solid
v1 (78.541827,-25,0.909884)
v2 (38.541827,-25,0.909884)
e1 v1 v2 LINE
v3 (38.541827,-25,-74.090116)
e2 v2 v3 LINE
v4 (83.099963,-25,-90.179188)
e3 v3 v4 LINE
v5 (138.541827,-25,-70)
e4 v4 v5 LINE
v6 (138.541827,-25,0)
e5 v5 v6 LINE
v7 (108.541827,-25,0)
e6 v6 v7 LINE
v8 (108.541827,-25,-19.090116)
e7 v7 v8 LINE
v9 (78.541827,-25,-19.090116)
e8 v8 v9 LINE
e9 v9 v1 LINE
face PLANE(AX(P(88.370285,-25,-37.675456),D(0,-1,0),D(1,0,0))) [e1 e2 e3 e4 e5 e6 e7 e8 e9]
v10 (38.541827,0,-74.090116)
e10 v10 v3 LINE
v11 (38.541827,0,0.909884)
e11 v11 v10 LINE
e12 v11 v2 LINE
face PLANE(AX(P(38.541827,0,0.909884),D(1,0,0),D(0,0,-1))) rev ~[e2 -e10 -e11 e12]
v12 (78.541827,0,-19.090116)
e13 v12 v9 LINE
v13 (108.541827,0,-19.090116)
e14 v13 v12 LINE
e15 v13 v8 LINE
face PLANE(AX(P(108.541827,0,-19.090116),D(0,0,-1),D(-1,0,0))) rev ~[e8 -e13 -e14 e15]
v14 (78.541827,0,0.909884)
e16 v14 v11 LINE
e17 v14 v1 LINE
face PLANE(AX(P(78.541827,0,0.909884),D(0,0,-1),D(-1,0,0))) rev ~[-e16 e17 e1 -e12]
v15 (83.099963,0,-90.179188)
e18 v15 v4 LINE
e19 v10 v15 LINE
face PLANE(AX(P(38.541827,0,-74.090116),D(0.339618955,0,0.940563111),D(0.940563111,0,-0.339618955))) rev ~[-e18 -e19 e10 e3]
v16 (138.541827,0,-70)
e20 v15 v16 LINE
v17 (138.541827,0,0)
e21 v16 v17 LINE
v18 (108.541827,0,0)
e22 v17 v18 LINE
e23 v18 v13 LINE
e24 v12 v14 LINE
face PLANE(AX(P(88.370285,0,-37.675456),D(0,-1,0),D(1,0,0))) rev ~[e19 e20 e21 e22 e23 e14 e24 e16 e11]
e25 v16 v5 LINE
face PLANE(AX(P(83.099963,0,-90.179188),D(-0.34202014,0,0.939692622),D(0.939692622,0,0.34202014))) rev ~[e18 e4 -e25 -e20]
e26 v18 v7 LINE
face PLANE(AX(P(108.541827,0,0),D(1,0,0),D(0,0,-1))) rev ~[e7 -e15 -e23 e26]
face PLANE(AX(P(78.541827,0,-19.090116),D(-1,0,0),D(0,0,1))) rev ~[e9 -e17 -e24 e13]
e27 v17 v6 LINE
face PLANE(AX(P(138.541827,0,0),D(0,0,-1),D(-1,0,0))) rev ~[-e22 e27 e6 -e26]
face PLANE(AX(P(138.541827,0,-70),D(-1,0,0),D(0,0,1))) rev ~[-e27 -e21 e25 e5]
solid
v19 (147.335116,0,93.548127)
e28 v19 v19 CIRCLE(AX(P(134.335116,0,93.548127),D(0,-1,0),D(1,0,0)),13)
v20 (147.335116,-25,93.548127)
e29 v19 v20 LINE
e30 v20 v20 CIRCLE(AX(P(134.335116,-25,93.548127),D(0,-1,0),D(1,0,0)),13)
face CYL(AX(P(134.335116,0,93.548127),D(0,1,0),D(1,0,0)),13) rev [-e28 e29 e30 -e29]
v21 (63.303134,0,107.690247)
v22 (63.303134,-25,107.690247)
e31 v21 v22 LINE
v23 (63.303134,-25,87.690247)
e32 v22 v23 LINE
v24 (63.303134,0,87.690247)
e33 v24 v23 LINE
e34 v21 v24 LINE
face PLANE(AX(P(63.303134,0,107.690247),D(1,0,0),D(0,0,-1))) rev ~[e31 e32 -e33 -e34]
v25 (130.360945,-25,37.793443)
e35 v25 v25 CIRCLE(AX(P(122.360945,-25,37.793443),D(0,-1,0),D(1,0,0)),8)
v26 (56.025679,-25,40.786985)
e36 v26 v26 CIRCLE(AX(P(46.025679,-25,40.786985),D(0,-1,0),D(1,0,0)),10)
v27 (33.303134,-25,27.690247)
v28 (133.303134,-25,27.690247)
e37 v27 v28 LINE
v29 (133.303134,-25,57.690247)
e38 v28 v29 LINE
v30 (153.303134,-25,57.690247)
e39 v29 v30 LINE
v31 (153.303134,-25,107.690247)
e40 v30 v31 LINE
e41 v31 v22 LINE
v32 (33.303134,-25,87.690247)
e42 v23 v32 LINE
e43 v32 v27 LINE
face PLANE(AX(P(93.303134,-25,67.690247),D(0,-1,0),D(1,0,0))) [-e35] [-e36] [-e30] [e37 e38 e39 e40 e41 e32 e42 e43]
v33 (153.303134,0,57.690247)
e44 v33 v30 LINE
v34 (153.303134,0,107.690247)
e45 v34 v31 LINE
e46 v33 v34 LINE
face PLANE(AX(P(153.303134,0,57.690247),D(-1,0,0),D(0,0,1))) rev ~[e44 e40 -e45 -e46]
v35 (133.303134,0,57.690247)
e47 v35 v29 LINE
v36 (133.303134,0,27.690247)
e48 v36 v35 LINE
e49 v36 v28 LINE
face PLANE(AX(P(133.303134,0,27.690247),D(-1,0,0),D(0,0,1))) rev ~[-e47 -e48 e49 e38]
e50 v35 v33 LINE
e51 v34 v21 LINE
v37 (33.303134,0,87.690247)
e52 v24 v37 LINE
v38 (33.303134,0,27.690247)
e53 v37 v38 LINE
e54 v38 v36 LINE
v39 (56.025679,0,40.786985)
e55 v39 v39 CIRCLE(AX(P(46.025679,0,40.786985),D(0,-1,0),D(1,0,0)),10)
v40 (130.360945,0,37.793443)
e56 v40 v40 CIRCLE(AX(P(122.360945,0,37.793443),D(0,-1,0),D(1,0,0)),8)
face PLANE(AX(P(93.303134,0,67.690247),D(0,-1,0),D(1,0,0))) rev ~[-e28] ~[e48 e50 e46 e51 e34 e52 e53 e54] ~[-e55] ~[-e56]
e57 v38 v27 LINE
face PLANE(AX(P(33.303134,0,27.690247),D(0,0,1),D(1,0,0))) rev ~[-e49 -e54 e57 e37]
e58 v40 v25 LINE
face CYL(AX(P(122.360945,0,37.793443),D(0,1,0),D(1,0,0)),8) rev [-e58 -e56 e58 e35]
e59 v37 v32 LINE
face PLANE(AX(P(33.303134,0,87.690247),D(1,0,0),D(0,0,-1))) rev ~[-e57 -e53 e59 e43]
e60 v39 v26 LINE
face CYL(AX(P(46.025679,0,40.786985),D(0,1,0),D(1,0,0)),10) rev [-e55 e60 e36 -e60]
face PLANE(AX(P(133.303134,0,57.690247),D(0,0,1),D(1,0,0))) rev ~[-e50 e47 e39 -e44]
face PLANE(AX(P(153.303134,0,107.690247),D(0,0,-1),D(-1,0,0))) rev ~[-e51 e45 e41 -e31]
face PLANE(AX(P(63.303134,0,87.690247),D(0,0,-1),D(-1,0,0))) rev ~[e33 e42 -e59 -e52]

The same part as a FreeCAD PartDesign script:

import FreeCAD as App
import Part
import Sketcher

V = App.Vector
Q = App.Units.Quantity

doc = App.newDocument("Part")
params = doc.addObject("Spreadsheet::Sheet", "Params")
for row, (alias, value) in enumerate([
    ("sketch1_diameter", "20 mm"),
    ("sketch1_diameter2", "16 mm"),
    ("sketch1_diameter3", "26 mm"),
    ("sketch1_width", "100 mm"),
    ("sketch1_width2", "20 mm"),
    ("pad1_length", "25 mm"),
], start=1):
    params.set(f"A{row}", alias)
    params.set(f"B{row}", "=" + value)
    params.setAlias(f"B{row}", alias)

body = doc.addObject("PartDesign::Body", "Body")
body.AllowCompound = True

# Sketch on XZ plane
sketch1 = body.newObject("Sketcher::SketchObject", "Sketch")
sketch1.AttachmentSupport = (doc.getObject("XZ_Plane"), [""])
sketch1.MapMode = "FlatFace"
sketch1.addGeometry([
    Part.LineSegment(V(33, 88, 0), V(33, 28, 0)),  # 0
    Part.LineSegment(V(33, 28, 0), V(133, 28, 0)),  # 1
    Part.LineSegment(V(133, 28, 0), V(133, 58, 0)),  # 2
    Part.LineSegment(V(133, 58, 0), V(153, 58, 0)),  # 3
    Part.LineSegment(V(153, 58, 0), V(153, 108, 0)),  # 4
    Part.LineSegment(V(153, 108, 0), V(63, 108, 0)),  # 5
    Part.LineSegment(V(63, 108, 0), V(63, 88, 0)),  # 6
    Part.LineSegment(V(63, 88, 0), V(33, 88, 0)),  # 7
    Part.Circle(V(46, 41, 0), V(0, 0, 1), 10),  # 8
    Part.Circle(V(122, 38, 0), V(0, 0, 1), 8),  # 9
    Part.Circle(V(134, 94, 0), V(0, 0, 1), 13),  # 10
    Part.LineSegment(V(39, 1, 0), V(39, -74, 0)),  # 11
    Part.LineSegment(V(39, -74, 0), V(83, -90, 0)),  # 12
    Part.LineSegment(V(83, -90, 0), V(139, -70, 0)),  # 13
    Part.LineSegment(V(139, -70, 0), V(139, 0, 0)),  # 14
    Part.LineSegment(V(139, 0, 0), V(109, 0, 0)),  # 15
    Part.LineSegment(V(109, 0, 0), V(109, -19, 0)),  # 16
    Part.LineSegment(V(109, -19, 0), V(79, -19, 0)),  # 17
    Part.LineSegment(V(79, -19, 0), V(79, 1, 0)),  # 18
    Part.LineSegment(V(79, 1, 0), V(39, 1, 0)),  # 19
], False)
sketch1.addConstraint([
    Sketcher.Constraint("Coincident", 0, 2, 1, 1),
    Sketcher.Constraint("Coincident", 1, 2, 2, 1),
    Sketcher.Constraint("Coincident", 2, 2, 3, 1),
    Sketcher.Constraint("Coincident", 3, 2, 4, 1),
    Sketcher.Constraint("Coincident", 4, 2, 5, 1),
    Sketcher.Constraint("Coincident", 5, 2, 6, 1),
    Sketcher.Constraint("Coincident", 6, 2, 7, 1),
    Sketcher.Constraint("Coincident", 7, 2, 0, 1),
    Sketcher.Constraint("Coincident", 11, 2, 12, 1),
    Sketcher.Constraint("Coincident", 12, 2, 13, 1),
    Sketcher.Constraint("Coincident", 13, 2, 14, 1),
    Sketcher.Constraint("Coincident", 14, 2, 15, 1),
    Sketcher.Constraint("Coincident", 15, 2, 16, 1),
    Sketcher.Constraint("Coincident", 16, 2, 17, 1),
    Sketcher.Constraint("Coincident", 17, 2, 18, 1),
    Sketcher.Constraint("Coincident", 18, 2, 19, 1),
    Sketcher.Constraint("Coincident", 19, 2, 11, 1),
    Sketcher.Constraint("Vertical", 0),
    Sketcher.Constraint("Horizontal", 1),
    Sketcher.Constraint("Vertical", 2),
    Sketcher.Constraint("Horizontal", 3),
    Sketcher.Constraint("Vertical", 4),
    Sketcher.Constraint("Horizontal", 5),
    Sketcher.Constraint("Vertical", 6),
    Sketcher.Constraint("Horizontal", 7),
    Sketcher.Constraint("Vertical", 11),
    Sketcher.Constraint("Vertical", 14),
    Sketcher.Constraint("Horizontal", 15),
    Sketcher.Constraint("Vertical", 16),
    Sketcher.Constraint("Horizontal", 17),
    Sketcher.Constraint("Vertical", 18),
    Sketcher.Constraint("Horizontal", 19),
    Sketcher.Constraint("PointOnObject", 14, 2, -1),
    Sketcher.Constraint("Equal", 7, 15),
    Sketcher.Constraint("Equal", 15, 17),
    Sketcher.Constraint("Equal", 17, 2),
    Sketcher.Constraint("Equal", 3, 6),
    Sketcher.Constraint("Equal", 6, 18),
    Sketcher.Constraint("Diameter", 8, Q("20 mm")),
    Sketcher.Constraint("Diameter", 9, Q("16 mm")),
    Sketcher.Constraint("Diameter", 10, Q("26 mm")),
    Sketcher.Constraint("DistanceX", 1, 1, 1, 2, Q("100 mm")),
    Sketcher.Constraint("DistanceX", 3, 1, 3, 2, Q("20 mm")),
    Sketcher.Constraint("DistanceX", 5, 2, 5, 1, Q("90 mm")),
    Sketcher.Constraint("DistanceX", 19, 2, 19, 1, Q("40 mm")),
    Sketcher.Constraint("DistanceY", 0, 2, 0, 1, Q("60 mm")),
    Sketcher.Constraint("DistanceY", 11, 2, 11, 1, Q("75 mm")),
    Sketcher.Constraint("DistanceY", 14, 1, 14, 2, Q("70 mm")),
    Sketcher.Constraint("Angle", 13, Q("20 deg")),
    Sketcher.Constraint("Distance", 13, Q("58.999999 mm")),
    Sketcher.Constraint("DistanceY", 11, 2, 8, 3, Q("114.877101 mm")),
    Sketcher.Constraint("DistanceY", 16, 2, 16, 1, Q("19.090116 mm")),
    Sketcher.Constraint("DistanceX", -1, 1, 8, 3, Q("46.025679 mm")),
    Sketcher.Constraint("DistanceY", 9, 3, 8, 3, Q("2.993542 mm")),
    Sketcher.Constraint("DistanceX", 9, 3, 10, 3, Q("11.974171 mm")),
    Sketcher.Constraint("DistanceY", 8, 3, 10, 3, Q("52.761142 mm")),
    Sketcher.Constraint("DistanceY", 0, 2, 8, 3, Q("13.096738 mm")),
    Sketcher.Constraint("DistanceX", 0, 2, 9, 3, Q("89.057811 mm")),
    Sketcher.Constraint("DistanceX", 11, 2, 8, 3, Q("7.483852 mm")),
    Sketcher.Constraint("DistanceX", 11, 2, 9, 3, Q("83.819118 mm")),
])
sketch1.setExpression("Constraints[38]", "Params.sketch1_diameter")
sketch1.setExpression("Constraints[39]", "Params.sketch1_diameter2")
sketch1.setExpression("Constraints[40]", "Params.sketch1_diameter3")
sketch1.setExpression("Constraints[41]", "Params.sketch1_width")
sketch1.setExpression("Constraints[42]", "Params.sketch1_width2")
pad1 = body.newObject("PartDesign::Pad", "Pad")
pad1.Profile = sketch1
pad1.setExpression("Length", "Params.pad1_length")

doc.recompute()
